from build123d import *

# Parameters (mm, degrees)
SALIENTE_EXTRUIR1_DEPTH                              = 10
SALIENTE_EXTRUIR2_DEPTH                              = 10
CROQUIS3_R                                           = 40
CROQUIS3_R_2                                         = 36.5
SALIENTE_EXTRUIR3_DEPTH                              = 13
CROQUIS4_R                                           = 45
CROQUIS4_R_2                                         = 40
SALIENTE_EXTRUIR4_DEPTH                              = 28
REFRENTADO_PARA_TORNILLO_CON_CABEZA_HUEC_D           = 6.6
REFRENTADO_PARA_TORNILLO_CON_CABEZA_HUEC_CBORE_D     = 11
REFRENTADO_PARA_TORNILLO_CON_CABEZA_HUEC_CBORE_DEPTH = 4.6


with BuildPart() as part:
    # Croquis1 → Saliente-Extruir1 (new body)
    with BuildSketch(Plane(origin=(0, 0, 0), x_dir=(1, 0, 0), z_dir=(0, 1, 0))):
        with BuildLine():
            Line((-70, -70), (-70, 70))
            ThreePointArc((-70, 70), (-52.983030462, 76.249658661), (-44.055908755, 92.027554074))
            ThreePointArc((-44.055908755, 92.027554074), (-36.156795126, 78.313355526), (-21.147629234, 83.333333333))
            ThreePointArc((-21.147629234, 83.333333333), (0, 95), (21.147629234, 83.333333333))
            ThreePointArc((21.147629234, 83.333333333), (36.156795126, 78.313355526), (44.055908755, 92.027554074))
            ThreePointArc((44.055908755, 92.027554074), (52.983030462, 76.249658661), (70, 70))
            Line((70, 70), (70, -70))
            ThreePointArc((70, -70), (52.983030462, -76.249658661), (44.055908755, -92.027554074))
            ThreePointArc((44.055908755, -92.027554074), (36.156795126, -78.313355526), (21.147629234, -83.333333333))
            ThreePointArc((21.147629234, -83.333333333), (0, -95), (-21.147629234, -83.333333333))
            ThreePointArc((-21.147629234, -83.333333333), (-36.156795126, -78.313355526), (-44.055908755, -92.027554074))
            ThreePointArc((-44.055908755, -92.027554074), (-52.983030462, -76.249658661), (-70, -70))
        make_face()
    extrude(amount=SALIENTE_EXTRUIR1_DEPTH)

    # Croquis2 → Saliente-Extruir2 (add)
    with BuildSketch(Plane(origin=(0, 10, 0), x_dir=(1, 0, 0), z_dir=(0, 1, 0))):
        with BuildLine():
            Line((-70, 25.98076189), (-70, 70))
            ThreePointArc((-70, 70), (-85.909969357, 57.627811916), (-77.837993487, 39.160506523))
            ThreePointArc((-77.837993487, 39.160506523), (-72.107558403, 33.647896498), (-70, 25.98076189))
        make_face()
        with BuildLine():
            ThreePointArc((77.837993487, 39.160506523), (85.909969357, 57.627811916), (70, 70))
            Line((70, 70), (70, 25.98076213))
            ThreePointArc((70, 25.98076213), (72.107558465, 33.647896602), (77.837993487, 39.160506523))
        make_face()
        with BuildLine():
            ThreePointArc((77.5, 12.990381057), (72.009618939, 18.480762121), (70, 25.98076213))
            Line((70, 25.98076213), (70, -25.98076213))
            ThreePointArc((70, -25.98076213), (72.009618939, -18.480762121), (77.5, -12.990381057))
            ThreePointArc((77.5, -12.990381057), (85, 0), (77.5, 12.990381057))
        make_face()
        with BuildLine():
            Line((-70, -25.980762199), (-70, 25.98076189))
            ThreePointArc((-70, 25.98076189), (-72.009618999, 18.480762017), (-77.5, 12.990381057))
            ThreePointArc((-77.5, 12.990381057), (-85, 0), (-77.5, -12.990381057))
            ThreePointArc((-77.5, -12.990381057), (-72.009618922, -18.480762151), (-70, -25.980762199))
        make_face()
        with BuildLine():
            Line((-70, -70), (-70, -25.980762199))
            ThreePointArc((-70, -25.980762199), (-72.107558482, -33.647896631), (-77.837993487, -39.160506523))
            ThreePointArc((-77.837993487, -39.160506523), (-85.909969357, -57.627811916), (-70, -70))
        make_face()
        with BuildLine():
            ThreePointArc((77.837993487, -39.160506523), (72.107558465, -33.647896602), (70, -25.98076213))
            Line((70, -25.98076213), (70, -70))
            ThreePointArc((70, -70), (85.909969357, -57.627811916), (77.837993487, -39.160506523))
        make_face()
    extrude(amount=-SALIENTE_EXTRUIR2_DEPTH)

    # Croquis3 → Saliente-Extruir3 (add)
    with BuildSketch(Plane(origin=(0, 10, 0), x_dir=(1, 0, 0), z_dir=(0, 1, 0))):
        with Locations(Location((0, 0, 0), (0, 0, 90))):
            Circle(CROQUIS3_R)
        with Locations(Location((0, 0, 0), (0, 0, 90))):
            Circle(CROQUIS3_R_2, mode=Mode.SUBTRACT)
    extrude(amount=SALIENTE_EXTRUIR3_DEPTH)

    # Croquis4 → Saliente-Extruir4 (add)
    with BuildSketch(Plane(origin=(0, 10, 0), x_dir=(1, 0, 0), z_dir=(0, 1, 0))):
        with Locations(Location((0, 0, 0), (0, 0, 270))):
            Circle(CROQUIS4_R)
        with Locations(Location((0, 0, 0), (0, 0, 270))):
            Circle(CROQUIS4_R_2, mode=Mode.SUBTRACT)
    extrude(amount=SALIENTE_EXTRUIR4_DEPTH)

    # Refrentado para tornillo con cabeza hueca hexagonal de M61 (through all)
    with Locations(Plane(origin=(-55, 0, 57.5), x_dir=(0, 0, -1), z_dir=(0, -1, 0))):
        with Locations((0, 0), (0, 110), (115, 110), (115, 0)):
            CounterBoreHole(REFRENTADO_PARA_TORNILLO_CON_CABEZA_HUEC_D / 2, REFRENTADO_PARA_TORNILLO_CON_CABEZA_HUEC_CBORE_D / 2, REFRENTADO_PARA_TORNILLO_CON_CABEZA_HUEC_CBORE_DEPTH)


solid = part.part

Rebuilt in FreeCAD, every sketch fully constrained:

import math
import FreeCAD as App
import Part
import Sketcher
Q = App.Units.Quantity

doc = App.newDocument("Part")
body = doc.addObject("PartDesign::Body", "Body")

# Sketch on XZ plane
sketch1 = doc.addObject("Sketcher::SketchObject", "Sketch")
body.addObject(sketch1)
sketch1.AttachmentSupport = (doc.XZ_Plane, [""])
sketch1.MapMode = "FlatFace"
sketch1.addGeometry(Part.LineSegment(App.Vector(-70, -70, 0), App.Vector(-70, 70, 0)), False)
sketch1.addGeometry(Part.ArcOfCircle(Part.Circle(App.Vector(-70, 96, 0), App.Vector(0, 0, 1), 26), math.radians(-90), math.radians(-9)), False)
sketch1.addGeometry(Part.ArcOfCircle(Part.Circle(App.Vector(-32, 90, 0), App.Vector(0, 0, 1), 12), math.radians(171), math.radians(328)), False)
sketch1.addGeometry(Part.ArcOfCircle(Part.Circle(App.Vector(0, 70, 0), App.Vector(0, 0, 1), 25), math.radians(32), math.radians(148)), False)
sketch1.addGeometry(Part.ArcOfCircle(Part.Circle(App.Vector(32, 90, 0), App.Vector(0, 0, 1), 12), math.radians(-148), math.radians(9)), False)
sketch1.addGeometry(Part.ArcOfCircle(Part.Circle(App.Vector(70, 96, 0), App.Vector(0, 0, 1), 26), math.radians(-171), math.radians(-90)), False)
sketch1.addGeometry(Part.LineSegment(App.Vector(70, 70, 0), App.Vector(70, -70, 0)), False)
sketch1.addGeometry(Part.ArcOfCircle(Part.Circle(App.Vector(70, -96, 0), App.Vector(0, 0, 1), 26), math.radians(90), math.radians(171)), False)
sketch1.addGeometry(Part.ArcOfCircle(Part.Circle(App.Vector(32, -90, 0), App.Vector(0, 0, 1), 12), math.radians(-9), math.radians(148)), False)
sketch1.addGeometry(Part.ArcOfCircle(Part.Circle(App.Vector(0, -70, 0), App.Vector(0, 0, 1), 25), math.radians(-148), math.radians(-32)), False)
sketch1.addGeometry(Part.ArcOfCircle(Part.Circle(App.Vector(-32, -90, 0), App.Vector(0, 0, 1), 12), math.radians(32), math.radians(189)), False)
sketch1.addGeometry(Part.ArcOfCircle(Part.Circle(App.Vector(-70, -96, 0), App.Vector(0, 0, 1), 26), math.radians(9), math.radians(90)), False)
sketch1.addConstraint(Sketcher.Constraint("Coincident", 0, 2, 1, 1))
sketch1.addConstraint(Sketcher.Constraint("Tangent", 1, 2, 2, 1))
sketch1.addConstraint(Sketcher.Constraint("Tangent", 2, 2, 3, 2))
sketch1.addConstraint(Sketcher.Constraint("Tangent", 3, 1, 4, 1))
sketch1.addConstraint(Sketcher.Constraint("Tangent", 4, 2, 5, 1))
sketch1.addConstraint(Sketcher.Constraint("Coincident", 5, 2, 6, 1))
sketch1.addConstraint(Sketcher.Constraint("Coincident", 6, 2, 7, 1))
sketch1.addConstraint(Sketcher.Constraint("Tangent", 7, 2, 8, 1))
sketch1.addConstraint(Sketcher.Constraint("Tangent", 8, 2, 9, 2))
sketch1.addConstraint(Sketcher.Constraint("Tangent", 9, 1, 10, 1))
sketch1.addConstraint(Sketcher.Constraint("Tangent", 10, 2, 11, 1))
sketch1.addConstraint(Sketcher.Constraint("Coincident", 11, 2, 0, 1))
sketch1.addConstraint(Sketcher.Constraint("Vertical", 0))
sketch1.addConstraint(Sketcher.Constraint("Vertical", 6))
sketch1.addConstraint(Sketcher.Constraint("Equal", 2, 4))
sketch1.addConstraint(Sketcher.Constraint("Equal", 1, 5))
sketch1.addConstraint(Sketcher.Constraint("Equal", 5, 7))
sketch1.addConstraint(Sketcher.Constraint("Equal", 4, 8))
sketch1.addConstraint(Sketcher.Constraint("Equal", 3, 9))
sketch1.addConstraint(Sketcher.Constraint("Equal", 8, 10))
sketch1.addConstraint(Sketcher.Constraint("Equal", 7, 11))
sketch1.addConstraint(Sketcher.Constraint("Symmetric", 1, 3, 7, 3, -1, 1))
sketch1.addConstraint(Sketcher.Constraint("Symmetric", 3, 3, 9, 3, -1, 1))
sketch1.addConstraint(Sketcher.Constraint("Symmetric", 5, 3, 11, 3, -1, 1))
sketch1.addConstraint(Sketcher.Constraint("Symmetric", 2, 3, 4, 3, -2))
sketch1.addConstraint(Sketcher.Constraint("Symmetric", 0, 2, 5, 2, -2))
sketch1.addConstraint(Sketcher.Constraint("Horizontal", 3, 3, 0, 2))
sketch1.addConstraint(Sketcher.Constraint("Vertical", 11, 3, 0, 2))
sketch1.addConstraint(Sketcher.Constraint("Radius", 3, Q("25 mm")))
sketch1.addConstraint(Sketcher.Constraint("Radius", 2, Q("12.5 mm")))
sketch1.addConstraint(Sketcher.Constraint("DistanceY", 0, 1, 0, 2, Q("140 mm")))
sketch1.addConstraint(Sketcher.Constraint("DistanceX", 1, 3, -1, 1, Q("70 mm")))
sketch1.addConstraint(Sketcher.Constraint("DistanceY", -1, 1, 2, 3, Q("90 mm")))
pad1 = doc.addObject("PartDesign::Pad", "Pad")
body.addObject(pad1)
pad1.Profile = sketch1
pad1.Length = 10
pad1.Reversed = True

# Sketch on XZ plane
sketch2 = doc.addObject("Sketcher::SketchObject", "Sketch001")
body.addObject(sketch2)
sketch2.AttachmentSupport = (doc.XZ_Plane, [""])
sketch2.MapMode = "FlatFace"
sketch2.AttachmentOffset = App.Placement(App.Vector(0, 0, -10), App.Rotation())
sketch2.addGeometry(Part.LineSegment(App.Vector(-70, -26, 0), App.Vector(-70, -70, 0)), False)
sketch2.addGeometry(Part.ArcOfCircle(Part.Circle(App.Vector(-70, -54, 0), App.Vector(0, 0, 1), 16), math.radians(119), math.radians(270)), False)
sketch2.addGeometry(Part.ArcOfCircle(Part.Circle(App.Vector(-85, -26, 0), App.Vector(0, 0, 1), 15), math.radians(-61), math.radians(0)), False)
sketch2.addGeometry(Part.ArcOfCircle(Part.Circle(App.Vector(70, -54, 0), App.Vector(0, 0, 1), 16), math.radians(-90), math.radians(61)), False)
sketch2.addGeometry(Part.LineSegment(App.Vector(70, -70, 0), App.Vector(70, -26, 0)), False)
sketch2.addGeometry(Part.ArcOfCircle(Part.Circle(App.Vector(85, -26, 0), App.Vector(0, 0, 1), 15), math.radians(-180), math.radians(-119)), False)
sketch2.addGeometry(Part.ArcOfCircle(Part.Circle(App.Vector(85, -26, 0), App.Vector(0, 0, 1), 15), math.radians(120), math.radians(180)), False)
sketch2.addGeometry(Part.LineSegment(App.Vector(70, -26, 0), App.Vector(70, 26, 0)), False)
sketch2.addGeometry(Part.ArcOfCircle(Part.Circle(App.Vector(85, 26, 0), App.Vector(0, 0, 1), 15), math.radians(180), math.radians(240)), False)
sketch2.addGeometry(Part.ArcOfCircle(Part.Circle(App.Vector(70, 0, 0), App.Vector(0, 0, 1), 15), math.radians(-60), math.radians(60)), False)
sketch2.addGeometry(Part.LineSegment(App.Vector(-70, 26, 0), App.Vector(-70, -26, 0)), False)
sketch2.addGeometry(Part.ArcOfCircle(Part.Circle(App.Vector(-85, -26, 0), App.Vector(0, 0, 1), 15), math.radians(0), math.radians(60)), False)
sketch2.addGeometry(Part.ArcOfCircle(Part.Circle(App.Vector(-70, 0, 0), App.Vector(0, 0, 1), 15), math.radians(120), math.radians(240)), False)
sketch2.addGeometry(Part.ArcOfCircle(Part.Circle(App.Vector(-85, 26, 0), App.Vector(0, 0, 1), 15), math.radians(-60), math.radians(0)), False)
sketch2.addGeometry(Part.LineSegment(App.Vector(-70, 70, 0), App.Vector(-70, 26, 0)), False)
sketch2.addGeometry(Part.ArcOfCircle(Part.Circle(App.Vector(-85, 26, 0), App.Vector(0, 0, 1), 15), math.radians(0), math.radians(61)), False)
sketch2.addGeometry(Part.ArcOfCircle(Part.Circle(App.Vector(-70, 54, 0), App.Vector(0, 0, 1), 16), math.radians(90), math.radians(241)), False)
sketch2.addGeometry(Part.ArcOfCircle(Part.Circle(App.Vector(85, 26, 0), App.Vector(0, 0, 1), 15), math.radians(119), math.radians(180)), False)
sketch2.addGeometry(Part.LineSegment(App.Vector(70, 26, 0), App.Vector(70, 70, 0)), False)
sketch2.addGeometry(Part.ArcOfCircle(Part.Circle(App.Vector(70, 54, 0), App.Vector(0, 0, 1), 16), math.radians(-61), math.radians(90)), False)
sketch2.addConstraint(Sketcher.Constraint("Coincident", 0, 2, 1, 2))
sketch2.addConstraint(Sketcher.Constraint("Tangent", 1, 1, 2, 1))
sketch2.addConstraint(Sketcher.Constraint("Tangent", 2, 2, 0, 1))
sketch2.addConstraint(Sketcher.Constraint("Coincident", 3, 1, 4, 1))
sketch2.addConstraint(Sketcher.Constraint("Tangent", 4, 2, 5, 1))
sketch2.addConstraint(Sketcher.Constraint("Tangent", 5, 2, 3, 2))
sketch2.addConstraint(Sketcher.Constraint("Tangent", 6, 2, 7, 1))
sketch2.addConstraint(Sketcher.Constraint("Tangent", 7, 2, 8, 1))
sketch2.addConstraint(Sketcher.Constraint("Tangent", 8, 2, 9, 2))
sketch2.addConstraint(Sketcher.Constraint("Tangent", 9, 1, 6, 1))
sketch2.addConstraint(Sketcher.Constraint("Tangent", 10, 2, 11, 1))
sketch2.addConstraint(Sketcher.Constraint("Tangent", 11, 2, 12, 2))
sketch2.addConstraint(Sketcher.Constraint("Tangent", 12, 1, 13, 1))
sketch2.addConstraint(Sketcher.Constraint("Tangent", 13, 2, 10, 1))
sketch2.addConstraint(Sketcher.Constraint("Tangent", 14, 2, 15, 1))
sketch2.addConstraint(Sketcher.Constraint("Tangent", 15, 2, 16, 2))
sketch2.addConstraint(Sketcher.Constraint("Coincident", 16, 1, 14, 1))
sketch2.addConstraint(Sketcher.Constraint("Tangent", 17, 2, 18, 1))
sketch2.addConstraint(Sketcher.Constraint("Coincident", 18, 2, 19, 2))
sketch2.addConstraint(Sketcher.Constraint("Tangent", 19, 1, 17, 1))
sketch2.addConstraint(Sketcher.Constraint("Vertical", 0))
sketch2.addConstraint(Sketcher.Constraint("Vertical", 4))
sketch2.addConstraint(Sketcher.Constraint("Vertical", 7))
sketch2.addConstraint(Sketcher.Constraint("Vertical", 10))
sketch2.addConstraint(Sketcher.Constraint("Vertical", 14))
sketch2.addConstraint(Sketcher.Constraint("Vertical", 18))
sketch2.addConstraint(Sketcher.Constraint("Coincident", 6, 3, 5, 3))
sketch2.addConstraint(Sketcher.Constraint("Coincident", 11, 3, 2, 3))
sketch2.addConstraint(Sketcher.Constraint("Coincident", 15, 3, 13, 3))
sketch2.addConstraint(Sketcher.Constraint("Coincident", 17, 3, 8, 3))
sketch2.addConstraint(Sketcher.Constraint("Equal", 1, 3))
sketch2.addConstraint(Sketcher.Constraint("Equal", 2, 5))
sketch2.addConstraint(Sketcher.Constraint("Equal", 5, 6))
sketch2.addConstraint(Sketcher.Constraint("Equal", 6, 8))
sketch2.addConstraint(Sketcher.Constraint("Equal", 8, 9))
sketch2.addConstraint(Sketcher.Constraint("Equal", 9, 11))
sketch2.addConstraint(Sketcher.Constraint("Equal", 11, 12))
sketch2.addConstraint(Sketcher.Constraint("Equal", 12, 13))
sketch2.addConstraint(Sketcher.Constraint("Equal", 13, 15))
sketch2.addConstraint(Sketcher.Constraint("Equal", 3, 16))
sketch2.addConstraint(Sketcher.Constraint("Equal", 15, 17))
sketch2.addConstraint(Sketcher.Constraint("Equal", 16, 19))
sketch2.addConstraint(Sketcher.Constraint("Symmetric", 2, 3, 8, 3, -1, 1))
sketch2.addConstraint(Sketcher.Constraint("Symmetric", 3, 3, 16, 3, -1, 1))
sketch2.addConstraint(Sketcher.Constraint("Symmetric", 1, 3, 3, 3, -2))
sketch2.addConstraint(Sketcher.Constraint("Horizontal", 16, 3, 19, 3))
sketch2.addConstraint(Sketcher.Constraint("Vertical", 3, 3, 9, 3))
sketch2.addConstraint(Sketcher.Constraint("Vertical", 16, 3, 0, 2))
sketch2.addConstraint(Sketcher.Constraint("Radius", 2, Q("15 mm")))
sketch2.addConstraint(Sketcher.Constraint("DistanceX", 1, 3, -1, 1, Q("70 mm")))
sketch2.addConstraint(Sketcher.Constraint("DistanceY", 0, 2, -1, 1, Q("70 mm")))
pad2 = doc.addObject("PartDesign::Pad", "Pad001")
body.addObject(pad2)
pad2.Profile = sketch2
pad2.Length = 10

# Sketch on XZ plane
sketch3 = doc.addObject("Sketcher::SketchObject", "Sketch002")
body.addObject(sketch3)
sketch3.AttachmentSupport = (doc.XZ_Plane, [""])
sketch3.MapMode = "FlatFace"
sketch3.AttachmentOffset = App.Placement(App.Vector(0, 0, -10), App.Rotation())
sketch3.addGeometry(Part.Circle(App.Vector(0, 0, 0), App.Vector(0, 0, 1), 40), False)
sketch3.addGeometry(Part.Circle(App.Vector(0, 0, 0), App.Vector(0, 0, 1), 36), False)
sketch3.addConstraint(Sketcher.Constraint("Coincident", 0, 3, -1, 1))
sketch3.addConstraint(Sketcher.Constraint("Coincident", 1, 3, -1, 1))
sketch3.addConstraint(Sketcher.Constraint("Diameter", 0, Q("80 mm")))
sketch3.addConstraint(Sketcher.Constraint("Diameter", 1, Q("73 mm")))
pad3 = doc.addObject("PartDesign::Pad", "Pad002")
body.addObject(pad3)
pad3.Profile = sketch3
pad3.Length = 13
pad3.Reversed = True

# Sketch on XZ plane
sketch4 = doc.addObject("Sketcher::SketchObject", "Sketch003")
body.addObject(sketch4)
sketch4.AttachmentSupport = (doc.XZ_Plane, [""])
sketch4.MapMode = "FlatFace"
sketch4.AttachmentOffset = App.Placement(App.Vector(0, 0, -10), App.Rotation())
sketch4.addGeometry(Part.Circle(App.Vector(0, 0, 0), App.Vector(0, 0, 1), 45), False)
sketch4.addGeometry(Part.Circle(App.Vector(0, 0, 0), App.Vector(0, 0, 1), 40), False)
sketch4.addConstraint(Sketcher.Constraint("Coincident", 0, 3, -1, 1))
sketch4.addConstraint(Sketcher.Constraint("Coincident", 1, 3, -1, 1))
sketch4.addConstraint(Sketcher.Constraint("Diameter", 0, Q("90 mm")))
sketch4.addConstraint(Sketcher.Constraint("Diameter", 1, Q("80 mm")))
pad4 = doc.addObject("PartDesign::Pad", "Pad003")
body.addObject(pad4)
pad4.Profile = sketch4
pad4.Length = 28
pad4.Reversed = True

# Sketch on XZ plane
sketch5 = doc.addObject("Sketcher::SketchObject", "Sketch004")
body.addObject(sketch5)
sketch5.AttachmentSupport = (doc.XZ_Plane, [""])
sketch5.MapMode = "FlatFace"
sketch5.addGeometry(Part.Circle(App.Vector(-55, 57.5, 0), App.Vector(0, 0, 1), 3.3), False)
sketch5.addGeometry(Part.Circle(App.Vector(55, 57.5, 0), App.Vector(0, 0, 1), 3.3), False)
sketch5.addGeometry(Part.Circle(App.Vector(55, -57.5, 0), App.Vector(0, 0, 1), 3.3), False)
sketch5.addGeometry(Part.Circle(App.Vector(-55, -57.5, 0), App.Vector(0, 0, 1), 3.3), False)
sketch5.addConstraint(Sketcher.Constraint("Equal", 0, 1))
sketch5.addConstraint(Sketcher.Constraint("Equal", 1, 2))
sketch5.addConstraint(Sketcher.Constraint("Equal", 2, 3))
sketch5.addConstraint(Sketcher.Constraint("Symmetric", 0, 3, 2, 3, -1, 1))
sketch5.addConstraint(Sketcher.Constraint("Symmetric", 1, 3, 3, 3, -1, 1))
sketch5.addConstraint(Sketcher.Constraint("Symmetric", 0, 3, 1, 3, -2))
sketch5.addConstraint(Sketcher.Constraint("Diameter", 0, Q("6.6 mm")))
sketch5.addConstraint(Sketcher.Constraint("DistanceX", 0, 3, -1, 1, Q("55 mm")))
sketch5.addConstraint(Sketcher.Constraint("DistanceY", 2, 3, 1, 3, Q("115 mm")))
doc.recompute()
hole = doc.addObject("PartDesign::Hole", "Hole")
body.addObject(hole)
hole.Profile = sketch5
hole.ThreadType = "None"
hole.Diameter = 6.6
hole.DepthType = "ThroughAll"
hole.HoleCutType = "Counterbore"
hole.HoleCutDiameter = 11
hole.HoleCutDepth = 4.6

doc.recompute()
